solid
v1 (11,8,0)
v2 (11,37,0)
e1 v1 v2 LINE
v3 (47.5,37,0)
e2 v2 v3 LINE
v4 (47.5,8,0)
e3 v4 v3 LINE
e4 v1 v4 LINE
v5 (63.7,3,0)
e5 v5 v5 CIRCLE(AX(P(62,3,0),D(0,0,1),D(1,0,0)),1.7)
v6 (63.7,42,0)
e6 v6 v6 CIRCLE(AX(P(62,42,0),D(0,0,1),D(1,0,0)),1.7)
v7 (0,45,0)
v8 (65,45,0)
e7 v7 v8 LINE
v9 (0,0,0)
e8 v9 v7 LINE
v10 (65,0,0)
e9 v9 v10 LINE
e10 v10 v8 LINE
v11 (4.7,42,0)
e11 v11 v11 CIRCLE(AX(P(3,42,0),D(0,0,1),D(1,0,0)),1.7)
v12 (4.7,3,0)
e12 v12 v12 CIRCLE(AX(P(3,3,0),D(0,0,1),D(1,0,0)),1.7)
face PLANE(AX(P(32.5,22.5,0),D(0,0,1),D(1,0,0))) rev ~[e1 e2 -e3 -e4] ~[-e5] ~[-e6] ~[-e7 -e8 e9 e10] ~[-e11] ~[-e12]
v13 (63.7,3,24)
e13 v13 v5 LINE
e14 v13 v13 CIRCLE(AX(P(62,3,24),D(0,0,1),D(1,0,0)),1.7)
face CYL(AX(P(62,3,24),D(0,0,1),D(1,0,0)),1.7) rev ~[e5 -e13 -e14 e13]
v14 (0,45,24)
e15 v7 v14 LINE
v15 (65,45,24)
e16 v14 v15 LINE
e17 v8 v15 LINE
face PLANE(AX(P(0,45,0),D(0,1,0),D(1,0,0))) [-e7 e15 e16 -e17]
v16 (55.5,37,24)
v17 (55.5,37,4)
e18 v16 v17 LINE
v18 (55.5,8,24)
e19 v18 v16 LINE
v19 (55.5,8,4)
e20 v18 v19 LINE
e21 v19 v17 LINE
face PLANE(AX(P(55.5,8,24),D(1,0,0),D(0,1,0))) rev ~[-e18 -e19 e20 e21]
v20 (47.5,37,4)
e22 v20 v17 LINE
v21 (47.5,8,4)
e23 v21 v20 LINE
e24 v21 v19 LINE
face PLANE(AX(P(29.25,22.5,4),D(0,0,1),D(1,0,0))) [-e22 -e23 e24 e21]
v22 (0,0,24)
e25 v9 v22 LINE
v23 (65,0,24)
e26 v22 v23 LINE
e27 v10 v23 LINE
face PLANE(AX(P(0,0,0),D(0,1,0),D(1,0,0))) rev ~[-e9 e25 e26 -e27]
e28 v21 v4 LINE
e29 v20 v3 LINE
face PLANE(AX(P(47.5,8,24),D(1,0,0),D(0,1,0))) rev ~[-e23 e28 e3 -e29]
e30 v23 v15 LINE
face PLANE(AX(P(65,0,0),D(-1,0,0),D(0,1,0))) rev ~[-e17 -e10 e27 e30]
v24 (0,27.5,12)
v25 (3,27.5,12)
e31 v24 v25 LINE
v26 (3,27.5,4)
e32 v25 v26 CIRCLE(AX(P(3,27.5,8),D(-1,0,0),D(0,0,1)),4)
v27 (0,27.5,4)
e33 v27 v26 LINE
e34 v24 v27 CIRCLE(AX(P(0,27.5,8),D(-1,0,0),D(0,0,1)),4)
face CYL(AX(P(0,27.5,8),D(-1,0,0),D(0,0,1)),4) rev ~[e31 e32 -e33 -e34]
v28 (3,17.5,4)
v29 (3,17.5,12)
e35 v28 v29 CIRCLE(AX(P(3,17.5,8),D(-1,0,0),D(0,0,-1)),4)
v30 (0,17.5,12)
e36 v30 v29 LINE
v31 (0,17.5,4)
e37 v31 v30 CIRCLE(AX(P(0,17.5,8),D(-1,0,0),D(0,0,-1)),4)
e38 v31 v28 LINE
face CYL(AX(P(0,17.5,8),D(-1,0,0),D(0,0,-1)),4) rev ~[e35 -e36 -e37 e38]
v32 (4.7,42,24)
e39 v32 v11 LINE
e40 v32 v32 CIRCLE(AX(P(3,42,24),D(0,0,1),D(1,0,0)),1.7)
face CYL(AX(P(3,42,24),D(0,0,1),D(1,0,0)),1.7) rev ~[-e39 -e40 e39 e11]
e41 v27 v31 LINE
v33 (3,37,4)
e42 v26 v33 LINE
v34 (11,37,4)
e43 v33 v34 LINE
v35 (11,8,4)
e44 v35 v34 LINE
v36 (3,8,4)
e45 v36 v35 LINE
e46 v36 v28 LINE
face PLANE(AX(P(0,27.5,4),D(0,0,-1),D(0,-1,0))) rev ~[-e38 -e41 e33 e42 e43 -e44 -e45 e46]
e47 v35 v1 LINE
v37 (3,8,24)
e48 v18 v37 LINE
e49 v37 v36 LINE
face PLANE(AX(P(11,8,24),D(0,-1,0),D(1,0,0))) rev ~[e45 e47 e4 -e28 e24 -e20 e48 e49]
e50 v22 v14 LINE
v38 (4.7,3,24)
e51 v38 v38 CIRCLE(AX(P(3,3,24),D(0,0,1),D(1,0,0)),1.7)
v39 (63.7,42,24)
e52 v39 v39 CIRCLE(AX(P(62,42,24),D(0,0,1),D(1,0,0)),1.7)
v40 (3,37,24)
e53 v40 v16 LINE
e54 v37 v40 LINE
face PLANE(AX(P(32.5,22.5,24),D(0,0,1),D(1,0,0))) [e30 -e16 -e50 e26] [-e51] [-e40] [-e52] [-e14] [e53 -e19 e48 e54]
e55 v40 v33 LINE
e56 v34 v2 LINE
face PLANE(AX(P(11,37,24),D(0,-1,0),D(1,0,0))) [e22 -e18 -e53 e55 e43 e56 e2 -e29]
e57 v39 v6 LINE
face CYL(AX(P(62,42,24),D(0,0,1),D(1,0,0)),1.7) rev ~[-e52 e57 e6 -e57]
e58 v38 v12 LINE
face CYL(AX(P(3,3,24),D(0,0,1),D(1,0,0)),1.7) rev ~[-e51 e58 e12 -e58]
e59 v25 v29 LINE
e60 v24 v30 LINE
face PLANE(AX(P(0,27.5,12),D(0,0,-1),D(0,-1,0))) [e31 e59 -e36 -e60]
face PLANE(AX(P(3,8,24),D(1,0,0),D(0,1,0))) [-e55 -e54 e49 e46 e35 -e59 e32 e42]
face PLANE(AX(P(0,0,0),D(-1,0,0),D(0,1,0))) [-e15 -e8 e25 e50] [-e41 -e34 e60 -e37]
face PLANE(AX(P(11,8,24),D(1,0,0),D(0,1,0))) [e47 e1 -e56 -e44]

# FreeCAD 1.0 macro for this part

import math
import FreeCAD as App
import Part
import Sketcher

doc = App.newDocument("Part")
params = doc.addObject("Spreadsheet::Sheet", "Params")
for row, (alias, value) in enumerate([
    ("sketch1_width", "65 mm"),
    ("sketch1_height", "45 mm"),
    ("pad1_length", "24 mm"),
    ("sketch2_height", "29 mm"),
    ("sketch2_width", "52.5 mm"),
    ("pocket1_length", "20 mm"),
    ("sketch3_diameter", "3.4 mm"),
    ("sketch3_height", "29 mm"),
    ("sketch3_width", "36.5 mm"),
    ("sketch4_radius", "4 mm"),
    ("sketch4_width", "10 mm"),
    ("pocket3_length", "3 mm"),
], start=1):
    params.set(f"A{row}", alias)
    params.set(f"B{row}", "=" + value)
    params.setAlias(f"B{row}", alias)

body = doc.addObject("PartDesign::Body", "Body")

# Sketch on XY plane
sketch1 = doc.addObject("Sketcher::SketchObject", "Sketch")
body.addObject(sketch1)
sketch1.AttachmentSupport = (doc.XY_Plane, [""])
sketch1.MapMode = "FlatFace"
sketch1.addGeometry([
    Part.LineSegment(App.Vector(0, 45, 0), App.Vector(0, 0, 0)),
    Part.LineSegment(App.Vector(0, 0, 0), App.Vector(65, 0, 0)),
    Part.LineSegment(App.Vector(65, 0, 0), App.Vector(65, 45, 0)),
    Part.LineSegment(App.Vector(65, 45, 0), App.Vector(0, 45, 0)),
], False)
sketch1.addConstraint([
    Sketcher.Constraint("Coincident", 0, 2, 1, 1),
    Sketcher.Constraint("Coincident", 1, 2, 2, 1),
    Sketcher.Constraint("Coincident", 2, 2, 3, 1),
    Sketcher.Constraint("Coincident", 3, 2, 0, 1),
    Sketcher.Constraint("Vertical", 0),
    Sketcher.Constraint("Horizontal", 1),
    Sketcher.Constraint("Vertical", 2),
    Sketcher.Constraint("Horizontal", 3),
    Sketcher.Constraint("Coincident", 0, 2, -1, 1),
    Sketcher.Constraint("DistanceX", 1, 1, 1, 2, 65.0),
    Sketcher.Constraint("DistanceY", 0, 2, 0, 1, 45.0),
])
sketch1.setExpression("Constraints[9]", "Params.sketch1_width")
sketch1.setExpression("Constraints[10]", "Params.sketch1_height")
pad1 = doc.addObject("PartDesign::Pad", "Pad")
body.addObject(pad1)
pad1.Profile = sketch1
pad1.setExpression("Length", "Params.pad1_length")

# Sketch on XY plane
sketch2 = doc.addObject("Sketcher::SketchObject", "Sketch001")
body.addObject(sketch2)
sketch2.AttachmentSupport = (doc.XY_Plane, [""])
sketch2.MapMode = "FlatFace"
sketch2.AttachmentOffset = App.Placement(App.Vector(0, 0, 24), App.Rotation())
sketch2.addGeometry([
    Part.LineSegment(App.Vector(3, 37, 0), App.Vector(3, 8, 0)),
    Part.LineSegment(App.Vector(3, 8, 0), App.Vector(56, 8, 0)),
    Part.LineSegment(App.Vector(56, 8, 0), App.Vector(56, 37, 0)),
    Part.LineSegment(App.Vector(56, 37, 0), App.Vector(3, 37, 0)),
], False)
sketch2.addConstraint([
    Sketcher.Constraint("Coincident", 0, 2, 1, 1),
    Sketcher.Constraint("Coincident", 1, 2, 2, 1),
    Sketcher.Constraint("Coincident", 2, 2, 3, 1),
    Sketcher.Constraint("Coincident", 3, 2, 0, 1),
    Sketcher.Constraint("Vertical", 0),
    Sketcher.Constraint("Horizontal", 1),
    Sketcher.Constraint("Vertical", 2),
    Sketcher.Constraint("Horizontal", 3),
    Sketcher.Constraint("DistanceY", 0, 2, 0, 1, 29.0),
    Sketcher.Constraint("DistanceX", 1, 1, 1, 2, 52.5),
    Sketcher.Constraint("DistanceX", -1, 1, 0, 2, 3.0),
    Sketcher.Constraint("DistanceY", -1, 1, 0, 2, 8.0),
])
sketch2.setExpression("Constraints[8]", "Params.sketch2_height")
sketch2.setExpression("Constraints[9]", "Params.sketch2_width")
pocket1 = doc.addObject("PartDesign::Pocket", "Pocket")
body.addObject(pocket1)
pocket1.Profile = sketch2
pocket1.setExpression("Length", "Params.pocket1_length")

# Sketch on XY plane
sketch3 = doc.addObject("Sketcher::SketchObject", "Sketch002")
body.addObject(sketch3)
sketch3.AttachmentSupport = (doc.XY_Plane, [""])
sketch3.MapMode = "FlatFace"
sketch3.AttachmentOffset = App.Placement(App.Vector(0, 0, 24), App.Rotation())
sketch3.addGeometry([
    Part.Circle(App.Vector(3, 42, 0), App.Vector(0, 0, 1), 1.7),  # 0
    Part.Circle(App.Vector(62, 42, 0), App.Vector(0, 0, 1), 1.7),  # 1
    Part.Circle(App.Vector(62, 3, 0), App.Vector(0, 0, 1), 1.7),  # 2
    Part.Circle(App.Vector(3, 3, 0), App.Vector(0, 0, 1), 1.7),  # 3
    Part.LineSegment(App.Vector(11, 37, 0), App.Vector(11, 8, 0)),  # 4
    Part.LineSegment(App.Vector(11, 8, 0), App.Vector(47.5, 8, 0)),  # 5
    Part.LineSegment(App.Vector(47.5, 8, 0), App.Vector(47.5, 37, 0)),  # 6
    Part.LineSegment(App.Vector(47.5, 37, 0), App.Vector(11, 37, 0)),  # 7
], False)
sketch3.addConstraint([
    Sketcher.Constraint("Coincident", 4, 2, 5, 1),
    Sketcher.Constraint("Coincident", 5, 2, 6, 1),
    Sketcher.Constraint("Coincident", 6, 2, 7, 1),
    Sketcher.Constraint("Coincident", 7, 2, 4, 1),
    Sketcher.Constraint("Vertical", 4),
    Sketcher.Constraint("Horizontal", 5),
    Sketcher.Constraint("Vertical", 6),
    Sketcher.Constraint("Horizontal", 7),
    Sketcher.Constraint("Equal", 0, 1),
    Sketcher.Constraint("Equal", 1, 2),
    Sketcher.Constraint("Equal", 2, 3),
    Sketcher.Constraint("Horizontal", 0, 3, 1, 3),
    Sketcher.Constraint("Horizontal", 2, 3, 3, 3),
    Sketcher.Constraint("Vertical", 1, 3, 2, 3),
    Sketcher.Constraint("Vertical", 0, 3, 3, 3),
    Sketcher.Constraint("Diameter", 0, 3.4),
    Sketcher.Constraint("DistanceY", 4, 2, 4, 1, 29.0),
    Sketcher.Constraint("DistanceX", 5, 1, 5, 2, 36.5),
    Sketcher.Constraint("DistanceX", -1, 1, 0, 3, 3.0),
    Sketcher.Constraint("DistanceY", -1, 1, 0, 3, 42.0),
    Sketcher.Constraint("DistanceX", -1, 1, 1, 3, 62.0),
    Sketcher.Constraint("DistanceY", -1, 1, 2, 3, 3.0),
    Sketcher.Constraint("DistanceX", -1, 1, 4, 2, 11.0),
    Sketcher.Constraint("DistanceY", -1, 1, 4, 2, 8.0),
])
sketch3.setExpression("Constraints[15]", "Params.sketch3_diameter")
sketch3.setExpression("Constraints[16]", "Params.sketch3_height")
sketch3.setExpression("Constraints[17]", "Params.sketch3_width")
pocket2 = doc.addObject("PartDesign::Pocket", "Pocket001")
body.addObject(pocket2)
pocket2.Profile = sketch3
pocket2.Type = "ThroughAll"

# Sketch on YZ plane
sketch4 = doc.addObject("Sketcher::SketchObject", "Sketch003")
body.addObject(sketch4)
sketch4.AttachmentSupport = (doc.YZ_Plane, [""])
sketch4.MapMode = "FlatFace"
sketch4.addGeometry([
    Part.ArcOfCircle(Part.Circle(App.Vector(27.5, 8, 0), App.Vector(0, 0, 1), 4), math.radians(-90), math.radians(90)),
    Part.LineSegment(App.Vector(27.5, 4, 0), App.Vector(17.5, 4, 0)),
    Part.ArcOfCircle(Part.Circle(App.Vector(17.5, 8, 0), App.Vector(0, 0, 1), 4), math.radians(90), math.radians(270)),
    Part.LineSegment(App.Vector(17.5, 12, 0), App.Vector(27.5, 12, 0)),
], False)
sketch4.addConstraint([
    Sketcher.Constraint("Tangent", 0, 1, 1, 1),
    Sketcher.Constraint("Tangent", 1, 2, 2, 2),
    Sketcher.Constraint("Tangent", 2, 1, 3, 1),
    Sketcher.Constraint("Tangent", 3, 2, 0, 2),
    Sketcher.Constraint("Horizontal", 1),
    Sketcher.Constraint("Horizontal", 3),
    Sketcher.Constraint("Radius", 0, 4.0),
    Sketcher.Constraint("DistanceX", 1, 2, 1, 1, 10.0),
    Sketcher.Constraint("DistanceY", -1, 1, 0, 3, 8.0),
    Sketcher.Constraint("DistanceX", -1, 1, 0, 3, 27.5),
])
sketch4.setExpression("Constraints[6]", "Params.sketch4_radius")
sketch4.setExpression("Constraints[7]", "Params.sketch4_width")
pocket3 = doc.addObject("PartDesign::Pocket", "Pocket002")
body.addObject(pocket3)
pocket3.Profile = sketch4
pocket3.setExpression("Length", "Params.pocket3_length")
pocket3.Reversed = True

doc.recompute()
